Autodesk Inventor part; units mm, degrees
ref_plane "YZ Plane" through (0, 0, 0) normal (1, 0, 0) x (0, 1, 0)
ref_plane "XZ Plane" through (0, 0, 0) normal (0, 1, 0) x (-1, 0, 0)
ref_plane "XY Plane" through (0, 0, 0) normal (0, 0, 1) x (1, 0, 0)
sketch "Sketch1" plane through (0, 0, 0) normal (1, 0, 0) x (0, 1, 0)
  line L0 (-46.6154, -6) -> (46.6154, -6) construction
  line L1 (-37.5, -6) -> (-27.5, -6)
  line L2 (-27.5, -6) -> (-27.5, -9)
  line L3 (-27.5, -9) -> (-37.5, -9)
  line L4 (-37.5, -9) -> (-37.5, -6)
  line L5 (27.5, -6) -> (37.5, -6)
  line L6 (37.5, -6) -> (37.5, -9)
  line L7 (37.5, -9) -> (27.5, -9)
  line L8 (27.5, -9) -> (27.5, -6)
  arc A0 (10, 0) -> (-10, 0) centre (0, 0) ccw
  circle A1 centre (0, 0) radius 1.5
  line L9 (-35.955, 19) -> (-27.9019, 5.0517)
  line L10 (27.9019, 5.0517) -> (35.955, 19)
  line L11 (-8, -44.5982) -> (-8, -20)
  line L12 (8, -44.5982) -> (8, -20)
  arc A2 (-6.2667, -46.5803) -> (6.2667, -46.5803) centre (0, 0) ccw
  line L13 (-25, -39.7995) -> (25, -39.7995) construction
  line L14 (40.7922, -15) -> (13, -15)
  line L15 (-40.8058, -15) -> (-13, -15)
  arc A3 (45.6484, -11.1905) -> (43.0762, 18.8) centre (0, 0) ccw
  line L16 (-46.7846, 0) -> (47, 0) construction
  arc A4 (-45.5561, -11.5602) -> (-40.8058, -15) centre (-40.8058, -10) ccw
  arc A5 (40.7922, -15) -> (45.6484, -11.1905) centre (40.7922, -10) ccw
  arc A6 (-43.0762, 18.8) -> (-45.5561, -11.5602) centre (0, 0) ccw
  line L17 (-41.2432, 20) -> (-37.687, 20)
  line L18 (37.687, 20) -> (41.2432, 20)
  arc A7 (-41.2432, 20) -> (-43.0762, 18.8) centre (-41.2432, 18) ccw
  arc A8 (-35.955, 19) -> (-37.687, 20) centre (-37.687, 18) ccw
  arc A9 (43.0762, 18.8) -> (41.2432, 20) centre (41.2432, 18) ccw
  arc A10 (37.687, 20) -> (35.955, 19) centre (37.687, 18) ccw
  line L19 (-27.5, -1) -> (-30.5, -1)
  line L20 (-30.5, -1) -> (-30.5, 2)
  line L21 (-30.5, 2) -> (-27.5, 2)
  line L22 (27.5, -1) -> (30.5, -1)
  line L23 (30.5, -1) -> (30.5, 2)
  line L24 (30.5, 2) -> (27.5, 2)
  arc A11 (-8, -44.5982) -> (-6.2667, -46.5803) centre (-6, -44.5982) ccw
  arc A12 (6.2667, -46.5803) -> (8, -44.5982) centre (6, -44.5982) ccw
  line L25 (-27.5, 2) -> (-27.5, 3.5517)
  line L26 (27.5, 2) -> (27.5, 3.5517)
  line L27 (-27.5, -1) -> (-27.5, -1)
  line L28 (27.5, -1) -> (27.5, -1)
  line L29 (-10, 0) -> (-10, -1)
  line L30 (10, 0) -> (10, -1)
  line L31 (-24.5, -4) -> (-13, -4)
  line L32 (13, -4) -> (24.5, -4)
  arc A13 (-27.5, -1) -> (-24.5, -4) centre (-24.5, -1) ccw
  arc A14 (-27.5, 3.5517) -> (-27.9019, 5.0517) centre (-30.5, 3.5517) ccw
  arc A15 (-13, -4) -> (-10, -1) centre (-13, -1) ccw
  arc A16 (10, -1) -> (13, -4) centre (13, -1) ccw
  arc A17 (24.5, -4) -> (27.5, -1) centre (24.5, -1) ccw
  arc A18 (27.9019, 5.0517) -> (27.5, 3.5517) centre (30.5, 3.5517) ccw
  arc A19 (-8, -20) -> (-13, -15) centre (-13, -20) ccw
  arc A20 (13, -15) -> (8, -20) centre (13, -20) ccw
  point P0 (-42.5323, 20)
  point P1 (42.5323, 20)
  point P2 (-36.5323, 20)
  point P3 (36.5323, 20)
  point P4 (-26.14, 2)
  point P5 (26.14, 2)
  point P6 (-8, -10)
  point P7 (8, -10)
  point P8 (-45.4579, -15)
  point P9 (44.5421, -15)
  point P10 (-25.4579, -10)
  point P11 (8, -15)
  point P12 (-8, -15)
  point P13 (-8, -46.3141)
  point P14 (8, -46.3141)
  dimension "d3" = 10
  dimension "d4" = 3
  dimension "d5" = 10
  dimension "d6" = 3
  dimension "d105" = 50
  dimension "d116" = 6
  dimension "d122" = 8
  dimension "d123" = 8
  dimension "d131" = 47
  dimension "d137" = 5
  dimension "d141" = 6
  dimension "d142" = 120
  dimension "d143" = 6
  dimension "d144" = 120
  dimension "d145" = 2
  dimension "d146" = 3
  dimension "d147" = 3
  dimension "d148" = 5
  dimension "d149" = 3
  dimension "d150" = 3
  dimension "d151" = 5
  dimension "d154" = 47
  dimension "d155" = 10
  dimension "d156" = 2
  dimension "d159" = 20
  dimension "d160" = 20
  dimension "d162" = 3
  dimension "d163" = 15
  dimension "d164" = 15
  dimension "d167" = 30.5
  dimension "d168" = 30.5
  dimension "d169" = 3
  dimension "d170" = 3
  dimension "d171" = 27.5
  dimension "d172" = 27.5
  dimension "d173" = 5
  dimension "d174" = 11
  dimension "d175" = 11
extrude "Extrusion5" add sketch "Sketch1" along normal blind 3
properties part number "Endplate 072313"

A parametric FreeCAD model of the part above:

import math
import FreeCAD as App
import Part
import Sketcher
from FreeCAD import Vector
Q = App.Units.Quantity

doc = App.newDocument("Part")
body = doc.addObject("PartDesign::Body", "Body")

# Sketch on YZ plane
sketch1 = body.newObject("Sketcher::SketchObject", "Sketch")
sketch1.AttachmentSupport = (doc.getObject("YZ_Plane"), [""])
sketch1.MapMode = "FlatFace"
sketch1.addGeometry(Part.LineSegment(Vector(10, -1, 0), Vector(10, 0, 0)), False)
sketch1.addGeometry(Part.ArcOfCircle(Part.Circle(Vector(0, 0, 0), Vector(0, 0, 1), 10), math.radians(0), math.radians(180)), False)
sketch1.addGeometry(Part.LineSegment(Vector(-10, 0, 0), Vector(-10, -1, 0)), False)
sketch1.addGeometry(Part.ArcOfCircle(Part.Circle(Vector(-13, -1, 0), Vector(0, 0, 1), 3), math.radians(-90), math.radians(0)), False)
sketch1.addGeometry(Part.LineSegment(Vector(-13, -4, 0), Vector(-24.5, -4, 0)), False)
sketch1.addGeometry(Part.ArcOfCircle(Part.Circle(Vector(-24.5, -1, 0), Vector(0, 0, 1), 3), math.radians(180), math.radians(270)), False)
sketch1.addGeometry(Part.LineSegment(Vector(-27.5, -1, 0), Vector(-30.5, -1, 0)), False)
sketch1.addGeometry(Part.LineSegment(Vector(-30.5, -1, 0), Vector(-30.5, 2, 0)), False)
sketch1.addGeometry(Part.LineSegment(Vector(-30.5, 2, 0), Vector(-27.5, 2, 0)), False)
sketch1.addGeometry(Part.LineSegment(Vector(-27.5, 2, 0), Vector(-27.5, 3.6, 0)), False)
sketch1.addGeometry(Part.ArcOfCircle(Part.Circle(Vector(-30.5, 3.6, 0), Vector(0, 0, 1), 3), math.radians(0), math.radians(30)), False)
sketch1.addGeometry(Part.LineSegment(Vector(-27.9, 5.1, 0), Vector(-36, 19, 0)), False)
sketch1.addGeometry(Part.ArcOfCircle(Part.Circle(Vector(-37.7, 18, 0), Vector(0, 0, 1), 2), math.radians(30), math.radians(90)), False)
sketch1.addGeometry(Part.LineSegment(Vector(-37.7, 20, 0), Vector(-41.2, 20, 0)), False)
sketch1.addGeometry(Part.ArcOfCircle(Part.Circle(Vector(-41.2, 18, 0), Vector(0, 0, 1), 2), math.radians(90), math.radians(156)), False)
sketch1.addGeometry(Part.ArcOfCircle(Part.Circle(Vector(0, 0, 0), Vector(0, 0, 1), 47), math.radians(156), math.radians(194)), False)
sketch1.addGeometry(Part.ArcOfCircle(Part.Circle(Vector(-40.8, -10, 0), Vector(0, 0, 1), 5), math.radians(-162), math.radians(-90)), False)
sketch1.addGeometry(Part.LineSegment(Vector(-40.8, -15, 0), Vector(-13, -15, 0)), False)
sketch1.addGeometry(Part.ArcOfCircle(Part.Circle(Vector(-13, -20, 0), Vector(0, 0, 1), 5), math.radians(0), math.radians(90)), False)
sketch1.addGeometry(Part.LineSegment(Vector(-8, -20, 0), Vector(-8, -44.6, 0)), False)
sketch1.addGeometry(Part.ArcOfCircle(Part.Circle(Vector(-6, -44.6, 0), Vector(0, 0, 1), 2), math.radians(180), math.radians(262)), False)
sketch1.addGeometry(Part.ArcOfCircle(Part.Circle(Vector(0, 0, 0), Vector(0, 0, 1), 47), math.radians(-97.66), math.radians(-82.34)), False)
sketch1.addGeometry(Part.ArcOfCircle(Part.Circle(Vector(6, -44.6, 0), Vector(0, 0, 1), 2), math.radians(-82), math.radians(0)), False)
sketch1.addGeometry(Part.LineSegment(Vector(8, -44.6, 0), Vector(8, -20, 0)), False)
sketch1.addGeometry(Part.ArcOfCircle(Part.Circle(Vector(13, -20, 0), Vector(0, 0, 1), 5), math.radians(90), math.radians(180)), False)
sketch1.addGeometry(Part.LineSegment(Vector(13, -15, 0), Vector(40.8, -15, 0)), False)
sketch1.addGeometry(Part.ArcOfCircle(Part.Circle(Vector(40.8, -10, 0), Vector(0, 0, 1), 5), math.radians(-90), math.radians(-14)), False)
sketch1.addGeometry(Part.ArcOfCircle(Part.Circle(Vector(0, 0, 0), Vector(0, 0, 1), 47), math.radians(-14), math.radians(24)), False)
sketch1.addGeometry(Part.ArcOfCircle(Part.Circle(Vector(41.2, 18, 0), Vector(0, 0, 1), 2), math.radians(24), math.radians(90)), False)
sketch1.addGeometry(Part.LineSegment(Vector(41.2, 20, 0), Vector(37.7, 20, 0)), False)
sketch1.addGeometry(Part.ArcOfCircle(Part.Circle(Vector(37.7, 18, 0), Vector(0, 0, 1), 2), math.radians(90), math.radians(150)), False)
sketch1.addGeometry(Part.LineSegment(Vector(36, 19, 0), Vector(27.9, 5.1, 0)), False)
sketch1.addGeometry(Part.ArcOfCircle(Part.Circle(Vector(30.5, 3.6, 0), Vector(0, 0, 1), 3), math.radians(150), math.radians(180)), False)
sketch1.addGeometry(Part.LineSegment(Vector(27.5, 3.6, 0), Vector(27.5, 2, 0)), False)
sketch1.addGeometry(Part.LineSegment(Vector(27.5, 2, 0), Vector(30.5, 2, 0)), False)
sketch1.addGeometry(Part.LineSegment(Vector(30.5, 2, 0), Vector(30.5, -1, 0)), False)
sketch1.addGeometry(Part.LineSegment(Vector(30.5, -1, 0), Vector(27.5, -1, 0)), False)
sketch1.addGeometry(Part.ArcOfCircle(Part.Circle(Vector(24.5, -1, 0), Vector(0, 0, 1), 3), math.radians(-90), math.radians(0)), False)
sketch1.addGeometry(Part.LineSegment(Vector(24.5, -4, 0), Vector(13, -4, 0)), False)
sketch1.addGeometry(Part.ArcOfCircle(Part.Circle(Vector(13, -1, 0), Vector(0, 0, 1), 3), math.radians(180), math.radians(270)), False)
sketch1.addGeometry(Part.LineSegment(Vector(-37.5, -9, 0), Vector(-37.5, -6, 0)), False)
sketch1.addGeometry(Part.LineSegment(Vector(-37.5, -6, 0), Vector(-27.5, -6, 0)), False)
sketch1.addGeometry(Part.LineSegment(Vector(-27.5, -6, 0), Vector(-27.5, -9, 0)), False)
sketch1.addGeometry(Part.LineSegment(Vector(-27.5, -9, 0), Vector(-37.5, -9, 0)), False)
sketch1.addGeometry(Part.Circle(Vector(0, 0, 0), Vector(0, 0, 1), 1.5), False)
sketch1.addGeometry(Part.LineSegment(Vector(27.5, -9, 0), Vector(27.5, -6, 0)), False)
sketch1.addGeometry(Part.LineSegment(Vector(27.5, -6, 0), Vector(37.5, -6, 0)), False)
sketch1.addGeometry(Part.LineSegment(Vector(37.5, -6, 0), Vector(37.5, -9, 0)), False)
sketch1.addGeometry(Part.LineSegment(Vector(37.5, -9, 0), Vector(27.5, -9, 0)), False)
sketch1.addConstraint(Sketcher.Constraint("Tangent", 0, 2, 1, 1))
sketch1.addConstraint(Sketcher.Constraint("Tangent", 1, 2, 2, 1))
sketch1.addConstraint(Sketcher.Constraint("Tangent", 2, 2, 3, 2))
sketch1.addConstraint(Sketcher.Constraint("Tangent", 3, 1, 4, 1))
sketch1.addConstraint(Sketcher.Constraint("Tangent", 4, 2, 5, 2))
sketch1.addConstraint(Sketcher.Constraint("Coincident", 5, 1, 6, 1))
sketch1.addConstraint(Sketcher.Constraint("Coincident", 6, 2, 7, 1))
sketch1.addConstraint(Sketcher.Constraint("Coincident", 7, 2, 8, 1))
sketch1.addConstraint(Sketcher.Constraint("Coincident", 8, 2, 9, 1))
sketch1.addConstraint(Sketcher.Constraint("Tangent", 9, 2, 10, 1))
sketch1.addConstraint(Sketcher.Constraint("Tangent", 10, 2, 11, 1))
sketch1.addConstraint(Sketcher.Constraint("Tangent", 11, 2, 12, 1))
sketch1.addConstraint(Sketcher.Constraint("Tangent", 12, 2, 13, 1))
sketch1.addConstraint(Sketcher.Constraint("Tangent", 13, 2, 14, 1))
sketch1.addConstraint(Sketcher.Constraint("Tangent", 14, 2, 15, 1))
sketch1.addConstraint(Sketcher.Constraint("Coincident", 15, 2, 16, 1))
sketch1.addConstraint(Sketcher.Constraint("Tangent", 16, 2, 17, 1))
sketch1.addConstraint(Sketcher.Constraint("Tangent", 17, 2, 18, 2))
sketch1.addConstraint(Sketcher.Constraint("Tangent", 18, 1, 19, 1))
sketch1.addConstraint(Sketcher.Constraint("Tangent", 19, 2, 20, 1))
sketch1.addConstraint(Sketcher.Constraint("Tangent", 20, 2, 21, 1))
sketch1.addConstraint(Sketcher.Constraint("Tangent", 21, 2, 22, 1))
sketch1.addConstraint(Sketcher.Constraint("Tangent", 22, 2, 23, 1))
sketch1.addConstraint(Sketcher.Constraint("Tangent", 23, 2, 24, 2))
sketch1.addConstraint(Sketcher.Constraint("Tangent", 24, 1, 25, 1))
sketch1.addConstraint(Sketcher.Constraint("Tangent", 25, 2, 26, 1))
sketch1.addConstraint(Sketcher.Constraint("Tangent", 26, 2, 27, 1))
sketch1.addConstraint(Sketcher.Constraint("Tangent", 27, 2, 28, 1))
sketch1.addConstraint(Sketcher.Constraint("Tangent", 28, 2, 29, 1))
sketch1.addConstraint(Sketcher.Constraint("Tangent", 29, 2, 30, 1))
sketch1.addConstraint(Sketcher.Constraint("Tangent", 30, 2, 31, 1))
sketch1.addConstraint(Sketcher.Constraint("Tangent", 31, 2, 32, 1))
sketch1.addConstraint(Sketcher.Constraint("Tangent", 32, 2, 33, 1))
sketch1.addConstraint(Sketcher.Constraint("Coincident", 33, 2, 34, 1))
sketch1.addConstraint(Sketcher.Constraint("Coincident", 34, 2, 35, 1))
sketch1.addConstraint(Sketcher.Constraint("Coincident", 35, 2, 36, 1))
sketch1.addConstraint(Sketcher.Constraint("Coincident", 36, 2, 37, 2))
sketch1.addConstraint(Sketcher.Constraint("Tangent", 37, 1, 38, 1))
sketch1.addConstraint(Sketcher.Constraint("Tangent", 38, 2, 39, 2))
sketch1.addConstraint(Sketcher.Constraint("Tangent", 39, 1, 0, 1))
sketch1.addConstraint(Sketcher.Constraint("Coincident", 40, 2, 41, 1))
sketch1.addConstraint(Sketcher.Constraint("Coincident", 41, 2, 42, 1))
sketch1.addConstraint(Sketcher.Constraint("Coincident", 42, 2, 43, 1))
sketch1.addConstraint(Sketcher.Constraint("Coincident", 43, 2, 40, 1))
sketch1.addConstraint(Sketcher.Constraint("Coincident", 45, 2, 46, 1))
sketch1.addConstraint(Sketcher.Constraint("Coincident", 46, 2, 47, 1))
sketch1.addConstraint(Sketcher.Constraint("Coincident", 47, 2, 48, 1))
sketch1.addConstraint(Sketcher.Constraint("Coincident", 48, 2, 45, 1))
sketch1.addConstraint(Sketcher.Constraint("Vertical", 0))
sketch1.addConstraint(Sketcher.Constraint("Vertical", 2))
sketch1.addConstraint(Sketcher.Constraint("Horizontal", 4))
sketch1.addConstraint(Sketcher.Constraint("Horizontal", 6))
sketch1.addConstraint(Sketcher.Constraint("Vertical", 7))
sketch1.addConstraint(Sketcher.Constraint("Horizontal", 8))
sketch1.addConstraint(Sketcher.Constraint("Vertical", 9))
sketch1.addConstraint(Sketcher.Constraint("Horizontal", 13))
sketch1.addConstraint(Sketcher.Constraint("Horizontal", 17))
sketch1.addConstraint(Sketcher.Constraint("Vertical", 19))
sketch1.addConstraint(Sketcher.Constraint("Vertical", 23))
sketch1.addConstraint(Sketcher.Constraint("Horizontal", 25))
sketch1.addConstraint(Sketcher.Constraint("Horizontal", 29))
sketch1.addConstraint(Sketcher.Constraint("Vertical", 33))
sketch1.addConstraint(Sketcher.Constraint("Horizontal", 34))
sketch1.addConstraint(Sketcher.Constraint("Vertical", 35))
sketch1.addConstraint(Sketcher.Constraint("Horizontal", 36))
sketch1.addConstraint(Sketcher.Constraint("Horizontal", 38))
sketch1.addConstraint(Sketcher.Constraint("Vertical", 40))
sketch1.addConstraint(Sketcher.Constraint("Horizontal", 41))
sketch1.addConstraint(Sketcher.Constraint("Vertical", 42))
sketch1.addConstraint(Sketcher.Constraint("Horizontal", 43))
sketch1.addConstraint(Sketcher.Constraint("Vertical", 45))
sketch1.addConstraint(Sketcher.Constraint("Horizontal", 46))
sketch1.addConstraint(Sketcher.Constraint("Vertical", 47))
sketch1.addConstraint(Sketcher.Constraint("Horizontal", 48))
sketch1.addConstraint(Sketcher.Constraint("Coincident", 1, 3, -1, 1))
sketch1.addConstraint(Sketcher.Constraint("Coincident", 15, 3, -1, 1))
sketch1.addConstraint(Sketcher.Constraint("Coincident", 21, 3, -1, 1))
sketch1.addConstraint(Sketcher.Constraint("Coincident", 27, 3, -1, 1))
sketch1.addConstraint(Sketcher.Constraint("Coincident", 44, 3, -1, 1))
sketch1.addConstraint(Sketcher.Constraint("Equal", 3, 5))
sketch1.addConstraint(Sketcher.Constraint("Equal", 5, 10))
sketch1.addConstraint(Sketcher.Constraint("Equal", 12, 14))
sketch1.addConstraint(Sketcher.Constraint("Equal", 16, 18))
sketch1.addConstraint(Sketcher.Constraint("Equal", 14, 20))
sketch1.addConstraint(Sketcher.Constraint("Equal", 15, 21))
sketch1.addConstraint(Sketcher.Constraint("Equal", 20, 22))
sketch1.addConstraint(Sketcher.Constraint("Equal", 18, 24))
sketch1.addConstraint(Sketcher.Constraint("Equal", 24, 26))
sketch1.addConstraint(Sketcher.Constraint("Equal", 21, 27))
sketch1.addConstraint(Sketcher.Constraint("Equal", 22, 28))
sketch1.addConstraint(Sketcher.Constraint("Equal", 28, 30))
sketch1.addConstraint(Sketcher.Constraint("Equal", 10, 32))
sketch1.addConstraint(Sketcher.Constraint("Equal", 32, 37))
sketch1.addConstraint(Sketcher.Constraint("Equal", 37, 39))
sketch1.addConstraint(Sketcher.Constraint("Symmetric", 18, 3, 24, 3, -2))
sketch1.addConstraint(Sketcher.Constraint("Symmetric", 12, 3, 30, 3, -2))
sketch1.addConstraint(Sketcher.Constraint("Symmetric", 10, 3, 32, 3, -2))
sketch1.addConstraint(Sketcher.Constraint("Symmetric", 5, 3, 37, 3, -2))
sketch1.addConstraint(Sketcher.Constraint("Symmetric", 7, 2, 34, 2, -2))
sketch1.addConstraint(Sketcher.Constraint("Symmetric", 41, 2, 45, 2, -2))
sketch1.addConstraint(Sketcher.Constraint("Symmetric", 43, 2, 47, 2, -2))
sketch1.addConstraint(Sketcher.Constraint("Horizontal", 2, 2, 5, 1))
sketch1.addConstraint(Sketcher.Constraint("Horizontal", 6, 2, 35, 2))
sketch1.addConstraint(Sketcher.Constraint("Vertical", 3, 3, 18, 3))
sketch1.addConstraint(Sketcher.Constraint("Vertical", 10, 3, 6, 2))
sketch1.addConstraint(Sketcher.Constraint("Vertical", 5, 1, 8, 2))
sketch1.addConstraint(Sketcher.Constraint("Vertical", 9, 2, 41, 2))
sketch1.addConstraint(Sketcher.Constraint("Equal", 36, 7))
sketch1.addConstraint(Sketcher.Constraint("Equal", 35, 40))
sketch1.addConstraint(Sketcher.Constraint("Diameter", 44, Q("3 mm")))
sketch1.addConstraint(Sketcher.Constraint("Radius", 1, Q("10 mm")))
sketch1.addConstraint(Sketcher.Constraint("Radius", 3, Q("3 mm")))
sketch1.addConstraint(Sketcher.Constraint("Radius", 12, Q("2 mm")))
sketch1.addConstraint(Sketcher.Constraint("Radius", 15, Q("47 mm")))
sketch1.addConstraint(Sketcher.Constraint("Radius", 16, Q("5 mm")))
sketch1.addConstraint(Sketcher.Constraint("DistanceX", 41, 1, 41, 2, Q("10 mm")))
sketch1.addConstraint(Sketcher.Constraint("Angle", 11, Q("120.0001 deg")))
sketch1.addConstraint(Sketcher.Constraint("DistanceY", 16, 3, -1, 1, Q("10 mm")))
sketch1.addConstraint(Sketcher.Constraint("DistanceY", -1, 1, 7, 2, Q("2 mm")))
sketch1.addConstraint(Sketcher.Constraint("DistanceY", -1, 1, 12, 2, Q("20 mm")))
sketch1.addConstraint(Sketcher.Constraint("DistanceY", 40, 2, -1, 1, Q("6 mm")))
sketch1.addConstraint(Sketcher.Constraint("DistanceX", 10, 3, -1, 1, Q("30.5 mm")))
sketch1.addConstraint(Sketcher.Constraint("DistanceX", 13, 2, 13, 1, Q("3.5562 mm")))
sketch1.addConstraint(Sketcher.Constraint("DistanceX", 17, 1, 17, 2, Q("27.8058 mm")))
pad1 = body.newObject("PartDesign::Pad", "Pad")
pad1.Profile = sketch1
pad1.Length = 3

doc.recompute()
